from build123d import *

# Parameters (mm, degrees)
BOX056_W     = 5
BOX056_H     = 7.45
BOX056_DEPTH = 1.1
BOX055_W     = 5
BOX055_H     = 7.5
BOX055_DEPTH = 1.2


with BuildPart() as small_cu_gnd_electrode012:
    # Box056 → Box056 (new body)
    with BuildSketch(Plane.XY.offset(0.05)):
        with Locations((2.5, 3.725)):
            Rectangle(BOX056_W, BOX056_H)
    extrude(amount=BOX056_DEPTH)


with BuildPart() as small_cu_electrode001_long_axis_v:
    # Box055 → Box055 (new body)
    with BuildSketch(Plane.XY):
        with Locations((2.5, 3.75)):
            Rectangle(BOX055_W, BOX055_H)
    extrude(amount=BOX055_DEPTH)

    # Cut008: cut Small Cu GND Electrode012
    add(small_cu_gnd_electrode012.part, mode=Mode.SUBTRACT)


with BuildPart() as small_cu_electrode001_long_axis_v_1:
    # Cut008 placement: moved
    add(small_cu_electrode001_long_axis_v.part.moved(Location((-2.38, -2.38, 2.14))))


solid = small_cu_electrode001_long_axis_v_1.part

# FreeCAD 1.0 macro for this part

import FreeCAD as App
import Part
import Sketcher

V = App.Vector
Q = App.Units.Quantity

doc = App.newDocument("Part")
body = doc.addObject("PartDesign::Body", "Body")

# Sketch on XY plane
sketch1 = body.newObject("Sketcher::SketchObject", "Sketch")
sketch1.AttachmentSupport = (doc.getObject("XY_Plane"), [""])
sketch1.MapMode = "FlatFace"
sketch1.AttachmentOffset = App.Placement(V(0, 0, 0.05), App.Rotation())
sketch1.addGeometry(Part.LineSegment(V(0, 7, 0), V(0, 0, 0)), False)
sketch1.addGeometry(Part.LineSegment(V(0, 0, 0), V(5, 0, 0)), False)
sketch1.addGeometry(Part.LineSegment(V(5, 0, 0), V(5, 7, 0)), False)
sketch1.addGeometry(Part.LineSegment(V(5, 7, 0), V(0, 7, 0)), False)
sketch1.addConstraint(Sketcher.Constraint("Coincident", 0, 2, 1, 1))
sketch1.addConstraint(Sketcher.Constraint("Coincident", 1, 2, 2, 1))
sketch1.addConstraint(Sketcher.Constraint("Coincident", 2, 2, 3, 1))
sketch1.addConstraint(Sketcher.Constraint("Coincident", 3, 2, 0, 1))
sketch1.addConstraint(Sketcher.Constraint("Vertical", 0))
sketch1.addConstraint(Sketcher.Constraint("Horizontal", 1))
sketch1.addConstraint(Sketcher.Constraint("Vertical", 2))
sketch1.addConstraint(Sketcher.Constraint("Horizontal", 3))
sketch1.addConstraint(Sketcher.Constraint("Coincident", 0, 2, -1, 1))
sketch1.addConstraint(Sketcher.Constraint("DistanceX", 1, 1, 1, 2, Q("5 mm")))
sketch1.addConstraint(Sketcher.Constraint("DistanceY", 0, 2, 0, 1, Q("7.45 mm")))
pad1 = body.newObject("PartDesign::Pad", "Pad")
pad1.Profile = sketch1
pad1.Length = 1.1
body2 = doc.addObject("PartDesign::Body", "Body001")

# Sketch on XY plane
sketch2 = body2.newObject("Sketcher::SketchObject", "Sketch001")
sketch2.AttachmentSupport = (doc.getObject("XY_Plane001"), [""])
sketch2.MapMode = "FlatFace"
sketch2.addGeometry(Part.LineSegment(V(0, 8, 0), V(0, 0, 0)), False)
sketch2.addGeometry(Part.LineSegment(V(0, 0, 0), V(5, 0, 0)), False)
sketch2.addGeometry(Part.LineSegment(V(5, 0, 0), V(5, 8, 0)), False)
sketch2.addGeometry(Part.LineSegment(V(5, 8, 0), V(0, 8, 0)), False)
sketch2.addConstraint(Sketcher.Constraint("Coincident", 0, 2, 1, 1))
sketch2.addConstraint(Sketcher.Constraint("Coincident", 1, 2, 2, 1))
sketch2.addConstraint(Sketcher.Constraint("Coincident", 2, 2, 3, 1))
sketch2.addConstraint(Sketcher.Constraint("Coincident", 3, 2, 0, 1))
sketch2.addConstraint(Sketcher.Constraint("Vertical", 0))
sketch2.addConstraint(Sketcher.Constraint("Horizontal", 1))
sketch2.addConstraint(Sketcher.Constraint("Vertical", 2))
sketch2.addConstraint(Sketcher.Constraint("Horizontal", 3))
sketch2.addConstraint(Sketcher.Constraint("Coincident", 0, 2, -1, 1))
sketch2.addConstraint(Sketcher.Constraint("DistanceX", 1, 1, 1, 2, Q("5 mm")))
sketch2.addConstraint(Sketcher.Constraint("DistanceY", 0, 2, 0, 1, Q("7.5 mm")))
pad2 = body2.newObject("PartDesign::Pad", "Pad001")
pad2.Profile = sketch2
pad2.Length = 1.2
doc.recompute()

boolean = body2.newObject("PartDesign::Boolean", "Boolean")
boolean.Type = "Cut"
boolean.addObjects([body])
body3 = doc.addObject("PartDesign::Body", "Body002")
doc.recompute()

body2.Placement = App.Placement(V(-2.38, -2.38, 2.14), App.Rotation(V(0, 0, 1), 0))
boolean2 = body3.newObject("PartDesign::Boolean", "Boolean001")
boolean2.Type = "Fuse"
boolean2.addObjects([body2])

doc.recompute()
